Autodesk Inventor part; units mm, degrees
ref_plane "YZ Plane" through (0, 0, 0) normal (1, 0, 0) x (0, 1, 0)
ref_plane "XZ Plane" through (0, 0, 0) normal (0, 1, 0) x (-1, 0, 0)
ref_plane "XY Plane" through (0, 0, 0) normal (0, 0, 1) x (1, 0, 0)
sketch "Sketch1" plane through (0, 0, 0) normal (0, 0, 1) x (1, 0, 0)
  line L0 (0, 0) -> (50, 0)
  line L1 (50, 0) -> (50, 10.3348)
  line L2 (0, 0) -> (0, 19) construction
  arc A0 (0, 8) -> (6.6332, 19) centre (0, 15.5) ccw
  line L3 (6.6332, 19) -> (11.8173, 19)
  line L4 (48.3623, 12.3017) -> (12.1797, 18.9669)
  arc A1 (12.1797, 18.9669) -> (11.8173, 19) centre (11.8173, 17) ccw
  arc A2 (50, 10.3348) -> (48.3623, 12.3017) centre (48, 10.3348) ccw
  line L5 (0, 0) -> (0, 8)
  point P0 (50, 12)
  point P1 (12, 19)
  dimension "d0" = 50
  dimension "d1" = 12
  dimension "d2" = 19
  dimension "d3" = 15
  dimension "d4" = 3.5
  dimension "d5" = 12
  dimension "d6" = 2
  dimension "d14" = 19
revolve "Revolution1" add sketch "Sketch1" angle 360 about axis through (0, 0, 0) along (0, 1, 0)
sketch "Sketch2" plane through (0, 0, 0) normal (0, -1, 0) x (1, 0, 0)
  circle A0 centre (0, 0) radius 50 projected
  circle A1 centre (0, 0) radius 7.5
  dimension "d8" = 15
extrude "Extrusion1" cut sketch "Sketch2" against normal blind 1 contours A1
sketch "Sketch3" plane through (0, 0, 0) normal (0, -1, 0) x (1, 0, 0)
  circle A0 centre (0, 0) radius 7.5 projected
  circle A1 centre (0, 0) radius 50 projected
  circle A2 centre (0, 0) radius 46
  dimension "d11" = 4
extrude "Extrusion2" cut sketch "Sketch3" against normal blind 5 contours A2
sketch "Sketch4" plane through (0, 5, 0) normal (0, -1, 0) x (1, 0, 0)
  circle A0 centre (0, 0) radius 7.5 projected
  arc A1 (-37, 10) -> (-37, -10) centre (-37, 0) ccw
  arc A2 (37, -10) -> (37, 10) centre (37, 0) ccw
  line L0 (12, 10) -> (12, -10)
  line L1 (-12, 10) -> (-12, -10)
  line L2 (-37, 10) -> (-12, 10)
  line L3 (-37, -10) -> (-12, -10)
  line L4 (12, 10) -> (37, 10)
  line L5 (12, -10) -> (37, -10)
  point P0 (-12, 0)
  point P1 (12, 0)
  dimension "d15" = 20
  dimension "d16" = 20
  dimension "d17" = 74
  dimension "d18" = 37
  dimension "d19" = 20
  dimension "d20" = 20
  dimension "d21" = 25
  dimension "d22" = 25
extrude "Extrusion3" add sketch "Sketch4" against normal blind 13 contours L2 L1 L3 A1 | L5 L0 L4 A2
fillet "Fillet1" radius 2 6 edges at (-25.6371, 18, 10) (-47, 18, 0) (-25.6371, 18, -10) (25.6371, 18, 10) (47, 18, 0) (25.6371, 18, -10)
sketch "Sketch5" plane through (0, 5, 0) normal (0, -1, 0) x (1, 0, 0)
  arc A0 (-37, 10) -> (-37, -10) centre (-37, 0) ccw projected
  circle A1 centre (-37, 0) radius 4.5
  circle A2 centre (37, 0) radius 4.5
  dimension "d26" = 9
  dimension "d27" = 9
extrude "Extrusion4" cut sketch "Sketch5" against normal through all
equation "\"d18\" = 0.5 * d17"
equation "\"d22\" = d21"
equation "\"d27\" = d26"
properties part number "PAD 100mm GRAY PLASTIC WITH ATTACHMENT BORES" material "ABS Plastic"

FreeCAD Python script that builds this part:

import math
import FreeCAD as App
import Part
import Sketcher
from FreeCAD import Vector
Q = App.Units.Quantity


def edges_at(feature, points):
    """Names of the edges that pass closest to the given points."""
    edges = feature.Shape.Edges
    near = lambda p: min(range(len(edges)), key=lambda i: edges[i].distToShape(Part.Vertex(*p))[0])
    return sorted({f"Edge{near(p) + 1}" for p in points})

doc = App.newDocument("Part")
params = doc.addObject("Spreadsheet::Sheet", "Params")
for row, (alias, value) in enumerate([
    ("sketch1_radius", "2 mm"),
    ("sketch1_radius2", "7.5 mm"),
    ("sketch1_width", "50 mm"),
    ("revolution_angle", "360 deg"),
    ("sketch2_diameter", "15 mm"),
    ("pocket1_length", "1 mm"),
    ("sketch3_diameter", "92 mm"),
    ("sketch3_diameter2", "15 mm"),
    ("pocket2_length", "5 mm"),
    ("sketch4_radius", "10 mm"),
    ("sketch4_width", "25 mm"),
    ("pad1_length", "13 mm"),
    ("fillet_radius", "2 mm"),
    ("sketch5_diameter", "9 mm"),
], start=1):
    params.set(f"A{row}", alias)
    params.set(f"B{row}", "=" + value)
    params.setAlias(f"B{row}", alias)

body = doc.addObject("PartDesign::Body", "Body")

# Sketch on XY plane
sketch1 = body.newObject("Sketcher::SketchObject", "Sketch")
sketch1.AttachmentSupport = (doc.getObject("XY_Plane"), [""])
sketch1.MapMode = "FlatFace"
sketch1.addGeometry([
    Part.LineSegment(Vector(0, 8, 0), Vector(0, 0, 0)),  # 0
    Part.LineSegment(Vector(0, 0, 0), Vector(50, 0, 0)),  # 1
    Part.LineSegment(Vector(50, 0, 0), Vector(50, 10.33, 0)),  # 2
    Part.ArcOfCircle(Part.Circle(Vector(48, 10.33, 0), Vector(0, 0, 1), 2), math.radians(0), math.radians(80)),  # 3
    Part.LineSegment(Vector(48.36, 12.3, 0), Vector(12.18, 18.97, 0)),  # 4
    Part.ArcOfCircle(Part.Circle(Vector(11.82, 17, 0), Vector(0, 0, 1), 2), math.radians(79.56), math.radians(90)),  # 5
    Part.LineSegment(Vector(11.82, 19, 0), Vector(6.63, 19, 0)),  # 6
    Part.ArcOfCircle(Part.Circle(Vector(0, 15.5, 0), Vector(0, 0, 1), 7.5), math.radians(-90), math.radians(28)),  # 7
], False)
sketch1.addConstraint([
    Sketcher.Constraint("Coincident", 0, 2, 1, 1),
    Sketcher.Constraint("Coincident", 1, 2, 2, 1),
    Sketcher.Constraint("Tangent", 2, 2, 3, 1),
    Sketcher.Constraint("Tangent", 3, 2, 4, 1),
    Sketcher.Constraint("Tangent", 4, 2, 5, 1),
    Sketcher.Constraint("Tangent", 5, 2, 6, 1),
    Sketcher.Constraint("Coincident", 6, 2, 7, 2),
    Sketcher.Constraint("Coincident", 7, 1, 0, 1),
    Sketcher.Constraint("Vertical", 0),
    Sketcher.Constraint("Horizontal", 1),
    Sketcher.Constraint("Vertical", 2),
    Sketcher.Constraint("Horizontal", 6),
    Sketcher.Constraint("Coincident", 0, 2, -1, 1),
    Sketcher.Constraint("Equal", 3, 5),
    Sketcher.Constraint("PointOnObject", 7, 3, -2),
    Sketcher.Constraint("Radius", 3, Q("2 mm")),
    Sketcher.Constraint("Radius", 7, Q("7.5 mm")),
    Sketcher.Constraint("DistanceX", 1, 1, 1, 2, Q("50 mm")),
    Sketcher.Constraint("DistanceY", -1, 1, 5, 2, Q("19 mm")),
    Sketcher.Constraint("DistanceY", 7, 3, 5, 2, Q("3.5 mm")),
    Sketcher.Constraint("DistanceX", 6, 2, 6, 1, Q("5.184 mm")),
    Sketcher.Constraint("DistanceY", 2, 1, 2, 2, Q("10.3348 mm")),
])
sketch1.setExpression("Constraints[15]", "Params.sketch1_radius")
sketch1.setExpression("Constraints[16]", "Params.sketch1_radius2")
sketch1.setExpression("Constraints[17]", "Params.sketch1_width")
revolution = body.newObject("PartDesign::Revolution", "Revolution")
revolution.Profile = sketch1
revolution.ReferenceAxis = (sketch1, ["V_Axis"])
revolution.setExpression("Angle", "Params.revolution_angle")

# Sketch on XZ plane
sketch2 = body.newObject("Sketcher::SketchObject", "Sketch001")
sketch2.AttachmentSupport = (doc.getObject("XZ_Plane"), [""])
sketch2.MapMode = "FlatFace"
sketch2.addGeometry(Part.Circle(Vector(0, 0, 0), Vector(0, 0, 1), 8), False)
sketch2.addConstraint([
    Sketcher.Constraint("Coincident", 0, 3, -1, 1),
    Sketcher.Constraint("Diameter", 0, Q("15 mm")),
])
sketch2.setExpression("Constraints[1]", "Params.sketch2_diameter")
pocket1 = body.newObject("PartDesign::Pocket", "Pocket")
pocket1.Profile = sketch2
pocket1.setExpression("Length", "Params.pocket1_length")

# Sketch on XZ plane
sketch3 = body.newObject("Sketcher::SketchObject", "Sketch002")
sketch3.AttachmentSupport = (doc.getObject("XZ_Plane"), [""])
sketch3.MapMode = "FlatFace"
sketch3.addGeometry([
    Part.Circle(Vector(0, 0, 0), Vector(0, 0, 1), 46),
    Part.Circle(Vector(0, 0, 0), Vector(0, 0, 1), 8),
], False)
sketch3.addConstraint([
    Sketcher.Constraint("Coincident", 0, 3, -1, 1),
    Sketcher.Constraint("Coincident", 1, 3, -1, 1),
    Sketcher.Constraint("Diameter", 0, Q("92 mm")),
    Sketcher.Constraint("Diameter", 1, Q("15 mm")),
])
sketch3.setExpression("Constraints[2]", "Params.sketch3_diameter")
sketch3.setExpression("Constraints[3]", "Params.sketch3_diameter2")
pocket2 = body.newObject("PartDesign::Pocket", "Pocket001")
pocket2.Profile = sketch3
pocket2.setExpression("Length", "Params.pocket2_length")

# Sketch on XZ plane
sketch4 = body.newObject("Sketcher::SketchObject", "Sketch003")
sketch4.AttachmentSupport = (doc.getObject("XZ_Plane"), [""])
sketch4.MapMode = "FlatFace"
sketch4.AttachmentOffset = App.Placement(Vector(0, 0, -5), App.Rotation())
sketch4.addGeometry([
    Part.LineSegment(Vector(-12, 10, 0), Vector(-37, 10, 0)),  # 0
    Part.ArcOfCircle(Part.Circle(Vector(-37, 0, 0), Vector(0, 0, 1), 10), math.radians(90), math.radians(270)),  # 1
    Part.LineSegment(Vector(-37, -10, 0), Vector(-12, -10, 0)),  # 2
    Part.LineSegment(Vector(-12, -10, 0), Vector(-12, 10, 0)),  # 3
    Part.LineSegment(Vector(12, -10, 0), Vector(37, -10, 0)),  # 4
    Part.ArcOfCircle(Part.Circle(Vector(37, 0, 0), Vector(0, 0, 1), 10), math.radians(-90), math.radians(90)),  # 5
    Part.LineSegment(Vector(37, 10, 0), Vector(12, 10, 0)),  # 6
    Part.LineSegment(Vector(12, 10, 0), Vector(12, -10, 0)),  # 7
], False)
sketch4.addConstraint([
    Sketcher.Constraint("Tangent", 0, 2, 1, 1),
    Sketcher.Constraint("Tangent", 1, 2, 2, 1),
    Sketcher.Constraint("Coincident", 2, 2, 3, 1),
    Sketcher.Constraint("Coincident", 3, 2, 0, 1),
    Sketcher.Constraint("Tangent", 4, 2, 5, 1),
    Sketcher.Constraint("Tangent", 5, 2, 6, 1),
    Sketcher.Constraint("Coincident", 6, 2, 7, 1),
    Sketcher.Constraint("Coincident", 7, 2, 4, 1),
    Sketcher.Constraint("Horizontal", 0),
    Sketcher.Constraint("Horizontal", 2),
    Sketcher.Constraint("Vertical", 3),
    Sketcher.Constraint("Horizontal", 4),
    Sketcher.Constraint("Horizontal", 6),
    Sketcher.Constraint("Vertical", 7),
    Sketcher.Constraint("Equal", 1, 5),
    Sketcher.Constraint("Symmetric", 1, 3, 5, 3, -1, 1),
    Sketcher.Constraint("Symmetric", 3, 2, 6, 2, -2),
    Sketcher.Constraint("Radius", 1, Q("10 mm")),
    Sketcher.Constraint("DistanceX", 0, 2, 0, 1, Q("25 mm")),
    Sketcher.Constraint("DistanceX", 1, 3, -1, 1, Q("37 mm")),
])
sketch4.setExpression("Constraints[17]", "Params.sketch4_radius")
sketch4.setExpression("Constraints[18]", "Params.sketch4_width")
pad1 = body.newObject("PartDesign::Pad", "Pad")
pad1.Profile = sketch4
pad1.setExpression("Length", "Params.pad1_length")
pad1.Reversed = True
doc.recompute()

fillet = body.newObject("PartDesign::Fillet", "Fillet")
fillet.Base = (pad1, edges_at(pad1, [
    (-25.637, 18, 10),
    (-47, 18, 0),
    (-25.637, 18, -10),
    (25.637, 18, 10),
    (47, 18, 0),
    (25.637, 18, -10),
]))
fillet.setExpression("Radius", "Params.fillet_radius")

# Sketch on XZ plane
sketch5 = body.newObject("Sketcher::SketchObject", "Sketch004")
sketch5.AttachmentSupport = (doc.getObject("XZ_Plane"), [""])
sketch5.MapMode = "FlatFace"
sketch5.AttachmentOffset = App.Placement(Vector(0, 0, -5), App.Rotation())
sketch5.addGeometry([
    Part.Circle(Vector(-37, 0, 0), Vector(0, 0, 1), 4.5),
    Part.Circle(Vector(37, 0, 0), Vector(0, 0, 1), 4.5),
], False)
sketch5.addConstraint([
    Sketcher.Constraint("Equal", 0, 1),
    Sketcher.Constraint("Symmetric", 0, 3, 1, 3, -1, 1),
    Sketcher.Constraint("PointOnObject", 0, 3, -1),
    Sketcher.Constraint("Diameter", 0, Q("9 mm")),
    Sketcher.Constraint("DistanceX", 0, 3, -1, 1, Q("37 mm")),
])
sketch5.setExpression("Constraints[3]", "Params.sketch5_diameter")
pocket3 = body.newObject("PartDesign::Pocket", "Pocket002")
pocket3.Profile = sketch5
pocket3.Type = "ThroughAll"

doc.recompute()
